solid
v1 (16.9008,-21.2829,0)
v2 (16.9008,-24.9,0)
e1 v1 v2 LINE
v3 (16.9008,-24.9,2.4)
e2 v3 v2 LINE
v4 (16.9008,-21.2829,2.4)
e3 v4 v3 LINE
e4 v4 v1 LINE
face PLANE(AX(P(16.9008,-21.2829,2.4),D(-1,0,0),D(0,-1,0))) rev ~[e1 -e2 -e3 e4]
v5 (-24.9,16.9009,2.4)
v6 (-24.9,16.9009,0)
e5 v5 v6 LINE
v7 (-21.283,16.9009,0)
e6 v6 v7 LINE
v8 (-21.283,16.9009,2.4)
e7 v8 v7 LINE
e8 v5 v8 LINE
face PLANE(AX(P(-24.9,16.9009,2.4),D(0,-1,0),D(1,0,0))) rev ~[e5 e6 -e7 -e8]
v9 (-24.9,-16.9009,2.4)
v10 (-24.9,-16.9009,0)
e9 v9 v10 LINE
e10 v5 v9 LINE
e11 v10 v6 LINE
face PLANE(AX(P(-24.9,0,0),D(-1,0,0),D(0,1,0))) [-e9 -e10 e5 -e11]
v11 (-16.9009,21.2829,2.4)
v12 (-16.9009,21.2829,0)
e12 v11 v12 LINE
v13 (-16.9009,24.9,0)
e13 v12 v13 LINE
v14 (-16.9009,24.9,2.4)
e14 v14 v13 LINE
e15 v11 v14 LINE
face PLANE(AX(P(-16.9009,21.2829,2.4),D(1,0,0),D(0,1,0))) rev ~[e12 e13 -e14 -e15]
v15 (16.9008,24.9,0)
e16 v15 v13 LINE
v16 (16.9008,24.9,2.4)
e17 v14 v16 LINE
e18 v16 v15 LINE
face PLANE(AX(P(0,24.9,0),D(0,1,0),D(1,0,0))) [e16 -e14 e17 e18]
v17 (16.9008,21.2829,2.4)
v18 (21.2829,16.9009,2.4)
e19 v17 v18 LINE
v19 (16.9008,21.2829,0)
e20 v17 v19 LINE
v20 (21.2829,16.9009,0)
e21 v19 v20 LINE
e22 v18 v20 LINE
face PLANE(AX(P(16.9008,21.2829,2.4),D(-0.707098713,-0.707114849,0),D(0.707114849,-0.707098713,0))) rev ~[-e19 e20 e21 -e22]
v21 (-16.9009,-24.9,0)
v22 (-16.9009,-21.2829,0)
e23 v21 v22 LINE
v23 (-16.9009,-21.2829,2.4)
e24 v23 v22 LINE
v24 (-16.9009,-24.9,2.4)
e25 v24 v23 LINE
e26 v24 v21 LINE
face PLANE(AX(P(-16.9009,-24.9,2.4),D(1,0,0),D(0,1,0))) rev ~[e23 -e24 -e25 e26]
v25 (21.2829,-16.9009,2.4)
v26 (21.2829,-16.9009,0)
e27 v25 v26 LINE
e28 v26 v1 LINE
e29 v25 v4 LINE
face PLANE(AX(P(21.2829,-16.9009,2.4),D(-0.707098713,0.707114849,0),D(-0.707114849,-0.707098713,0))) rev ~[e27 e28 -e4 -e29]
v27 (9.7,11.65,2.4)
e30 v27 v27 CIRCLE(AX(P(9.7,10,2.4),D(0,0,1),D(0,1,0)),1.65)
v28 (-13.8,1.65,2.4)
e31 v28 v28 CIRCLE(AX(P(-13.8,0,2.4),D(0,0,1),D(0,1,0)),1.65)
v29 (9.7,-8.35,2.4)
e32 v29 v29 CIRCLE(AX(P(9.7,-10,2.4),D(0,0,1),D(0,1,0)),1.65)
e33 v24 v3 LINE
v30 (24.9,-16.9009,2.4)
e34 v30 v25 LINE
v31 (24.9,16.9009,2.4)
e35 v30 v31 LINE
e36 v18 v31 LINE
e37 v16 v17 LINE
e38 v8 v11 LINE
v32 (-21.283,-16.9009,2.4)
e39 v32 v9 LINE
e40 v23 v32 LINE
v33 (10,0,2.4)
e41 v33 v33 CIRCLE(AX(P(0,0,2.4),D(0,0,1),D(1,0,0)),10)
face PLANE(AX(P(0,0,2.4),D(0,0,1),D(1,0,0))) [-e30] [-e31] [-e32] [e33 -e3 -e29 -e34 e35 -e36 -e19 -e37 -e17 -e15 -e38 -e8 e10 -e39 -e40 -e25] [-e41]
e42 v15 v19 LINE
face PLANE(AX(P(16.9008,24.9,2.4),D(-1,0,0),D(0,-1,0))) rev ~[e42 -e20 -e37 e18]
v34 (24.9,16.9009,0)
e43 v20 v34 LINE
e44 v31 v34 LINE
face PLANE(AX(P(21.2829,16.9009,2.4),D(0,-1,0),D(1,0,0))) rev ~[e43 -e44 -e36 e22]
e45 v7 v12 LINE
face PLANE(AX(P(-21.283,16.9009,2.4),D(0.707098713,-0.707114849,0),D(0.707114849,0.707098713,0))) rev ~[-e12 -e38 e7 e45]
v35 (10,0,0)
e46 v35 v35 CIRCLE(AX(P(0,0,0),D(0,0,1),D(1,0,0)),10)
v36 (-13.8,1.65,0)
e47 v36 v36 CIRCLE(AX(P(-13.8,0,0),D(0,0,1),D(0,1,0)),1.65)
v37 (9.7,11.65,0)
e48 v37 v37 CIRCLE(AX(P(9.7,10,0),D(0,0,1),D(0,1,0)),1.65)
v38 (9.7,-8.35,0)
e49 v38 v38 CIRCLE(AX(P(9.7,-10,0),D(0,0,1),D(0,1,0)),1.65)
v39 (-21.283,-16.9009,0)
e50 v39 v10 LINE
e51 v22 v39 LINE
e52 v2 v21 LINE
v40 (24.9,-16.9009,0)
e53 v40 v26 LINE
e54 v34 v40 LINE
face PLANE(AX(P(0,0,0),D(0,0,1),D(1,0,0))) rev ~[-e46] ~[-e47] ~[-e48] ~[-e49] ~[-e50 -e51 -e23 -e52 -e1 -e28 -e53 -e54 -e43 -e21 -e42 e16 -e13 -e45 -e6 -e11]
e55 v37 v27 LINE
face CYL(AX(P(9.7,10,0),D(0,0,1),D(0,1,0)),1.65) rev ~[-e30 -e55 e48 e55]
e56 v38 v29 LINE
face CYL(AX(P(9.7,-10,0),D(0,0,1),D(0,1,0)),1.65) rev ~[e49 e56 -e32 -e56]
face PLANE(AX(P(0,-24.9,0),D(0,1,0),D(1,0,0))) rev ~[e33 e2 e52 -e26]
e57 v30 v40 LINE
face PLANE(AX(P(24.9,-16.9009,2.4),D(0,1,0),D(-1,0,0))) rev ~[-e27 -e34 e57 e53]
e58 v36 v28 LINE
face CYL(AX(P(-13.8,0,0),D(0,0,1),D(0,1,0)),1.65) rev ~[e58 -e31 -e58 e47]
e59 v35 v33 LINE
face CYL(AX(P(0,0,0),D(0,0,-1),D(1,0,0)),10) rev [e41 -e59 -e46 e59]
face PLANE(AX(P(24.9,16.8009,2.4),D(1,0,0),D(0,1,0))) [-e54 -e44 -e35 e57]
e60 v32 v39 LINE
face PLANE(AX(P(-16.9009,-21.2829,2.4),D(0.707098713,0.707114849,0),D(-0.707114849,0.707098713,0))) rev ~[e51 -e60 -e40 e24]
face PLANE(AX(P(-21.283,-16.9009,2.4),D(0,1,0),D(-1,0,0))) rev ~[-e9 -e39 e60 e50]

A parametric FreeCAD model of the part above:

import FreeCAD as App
import Part
import Sketcher
from FreeCAD import Vector

doc = App.newDocument("Part")
body = doc.addObject("PartDesign::Body", "Body")

# Sketch on XY plane
sketch1 = body.newObject("Sketcher::SketchObject", "Sketch")
sketch1.AttachmentSupport = (doc.getObject("XY_Plane"), [""])
sketch1.MapMode = "FlatFace"
sketch1.addGeometry(Part.LineSegment(Vector(16.8, 24.9, 0), Vector(-16.8, 24.9, 0)), False)
sketch1.addGeometry(Part.LineSegment(Vector(-16.8, 24.9, 0), Vector(-16.8, 21.2, 0)), False)
sketch1.addGeometry(Part.LineSegment(Vector(-16.8, 21.2, 0), Vector(-21.2, 16.8, 0)), False)
sketch1.addGeometry(Part.LineSegment(Vector(-21.2, 16.8, 0), Vector(-24.9, 16.8, 0)), False)
sketch1.addGeometry(Part.LineSegment(Vector(-24.9, 16.8, 0), Vector(-24.9, -16.8, 0)), False)
sketch1.addGeometry(Part.LineSegment(Vector(-24.9, -16.8, 0), Vector(-21.2, -16.8, 0)), False)
sketch1.addGeometry(Part.LineSegment(Vector(-21.2, -16.8, 0), Vector(-16.8, -21.2, 0)), False)
sketch1.addGeometry(Part.LineSegment(Vector(-16.8, -21.2, 0), Vector(-16.8, -24.9, 0)), False)
sketch1.addGeometry(Part.LineSegment(Vector(-16.8, -24.9, 0), Vector(16.8, -24.9, 0)), False)
sketch1.addGeometry(Part.LineSegment(Vector(16.8, -24.9, 0), Vector(16.8, -21.2, 0)), False)
sketch1.addGeometry(Part.LineSegment(Vector(16.8, -21.2, 0), Vector(21.2, -16.8, 0)), False)
sketch1.addGeometry(Part.LineSegment(Vector(21.2, -16.8, 0), Vector(24.9, -16.8, 0)), False)
sketch1.addGeometry(Part.LineSegment(Vector(24.9, -16.8, 0), Vector(24.9, 16.8, 0)), False)
sketch1.addGeometry(Part.LineSegment(Vector(24.9, 16.8, 0), Vector(21.2, 16.8, 0)), False)
sketch1.addGeometry(Part.LineSegment(Vector(21.2, 16.8, 0), Vector(16.8, 21.2, 0)), False)
sketch1.addGeometry(Part.LineSegment(Vector(16.8, 21.2, 0), Vector(16.8, 24.9, 0)), False)
sketch1.addGeometry(Part.Circle(Vector(0, 0, 0), Vector(0, 0, 1), 10), False)
sketch1.addConstraint(Sketcher.Constraint("Coincident", 0, 2, 1, 1))
sketch1.addConstraint(Sketcher.Constraint("Coincident", 1, 2, 2, 1))
sketch1.addConstraint(Sketcher.Constraint("Coincident", 2, 2, 3, 1))
sketch1.addConstraint(Sketcher.Constraint("Coincident", 3, 2, 4, 1))
sketch1.addConstraint(Sketcher.Constraint("Coincident", 4, 2, 5, 1))
sketch1.addConstraint(Sketcher.Constraint("Coincident", 5, 2, 6, 1))
sketch1.addConstraint(Sketcher.Constraint("Coincident", 6, 2, 7, 1))
sketch1.addConstraint(Sketcher.Constraint("Coincident", 7, 2, 8, 1))
sketch1.addConstraint(Sketcher.Constraint("Coincident", 8, 2, 9, 1))
sketch1.addConstraint(Sketcher.Constraint("Coincident", 9, 2, 10, 1))
sketch1.addConstraint(Sketcher.Constraint("Coincident", 10, 2, 11, 1))
sketch1.addConstraint(Sketcher.Constraint("Coincident", 11, 2, 12, 1))
sketch1.addConstraint(Sketcher.Constraint("Coincident", 12, 2, 13, 1))
sketch1.addConstraint(Sketcher.Constraint("Coincident", 13, 2, 14, 1))
sketch1.addConstraint(Sketcher.Constraint("Coincident", 14, 2, 15, 1))
sketch1.addConstraint(Sketcher.Constraint("Coincident", 15, 2, 0, 1))
sketch1.addConstraint(Sketcher.Constraint("Horizontal", 0))
sketch1.addConstraint(Sketcher.Constraint("Vertical", 1))
sketch1.addConstraint(Sketcher.Constraint("Horizontal", 3))
sketch1.addConstraint(Sketcher.Constraint("Vertical", 4))
sketch1.addConstraint(Sketcher.Constraint("Horizontal", 5))
sketch1.addConstraint(Sketcher.Constraint("Vertical", 7))
sketch1.addConstraint(Sketcher.Constraint("Horizontal", 8))
sketch1.addConstraint(Sketcher.Constraint("Vertical", 9))
sketch1.addConstraint(Sketcher.Constraint("Horizontal", 11))
sketch1.addConstraint(Sketcher.Constraint("Vertical", 12))
sketch1.addConstraint(Sketcher.Constraint("Horizontal", 13))
sketch1.addConstraint(Sketcher.Constraint("Vertical", 15))
sketch1.addConstraint(Sketcher.Constraint("Coincident", 16, 3, -1, 1))
sketch1.addConstraint(Sketcher.Constraint("Symmetric", 0, 2, 8, 2, -1, 1))
sketch1.addConstraint(Sketcher.Constraint("Symmetric", 2, 2, 10, 2, -1, 1))
sketch1.addConstraint(Sketcher.Constraint("Symmetric", 4, 2, 12, 2, -1, 1))
sketch1.addConstraint(Sketcher.Constraint("Symmetric", 6, 2, 14, 2, -1, 1))
sketch1.addConstraint(Sketcher.Constraint("Symmetric", 6, 2, 9, 2, -2))
sketch1.addConstraint(Sketcher.Constraint("Symmetric", 5, 2, 10, 2, -2))
sketch1.addConstraint(Sketcher.Constraint("Perpendicular", 2, 6))
sketch1.addConstraint(Sketcher.Constraint("Perpendicular", 6, 10))
sketch1.addConstraint(Sketcher.Constraint("Perpendicular", 10, 14))
sketch1.addConstraint(Sketcher.Constraint("Equal", 13, 1))
sketch1.addConstraint(Sketcher.Constraint("Equal", 8, 4))
sketch1.addConstraint(Sketcher.Constraint("Diameter", 16, 20.0))
sketch1.addConstraint(Sketcher.Constraint("DistanceY", -1, 1, 0, 2, 24.9))
sketch1.addConstraint(Sketcher.Constraint("Distance", 2, 6.28))
sketch1.addConstraint(Sketcher.Constraint("DistanceX", 0, 2, 0, 1, 33.6018))
pad1 = body.newObject("PartDesign::Pad", "Pad")
pad1.Profile = sketch1
pad1.Length = 2.4

# Sketch on XY plane
sketch2 = body.newObject("Sketcher::SketchObject", "Sketch001")
sketch2.AttachmentSupport = (doc.getObject("XY_Plane"), [""])
sketch2.MapMode = "FlatFace"
sketch2.addGeometry(Part.Circle(Vector(9.7, 10, 0), Vector(0, 0, 1), 1.6), False)
sketch2.addGeometry(Part.Circle(Vector(-13.8, 0, 0), Vector(0, 0, 1), 1.6), False)
sketch2.addGeometry(Part.Circle(Vector(9.7, -10, 0), Vector(0, 0, 1), 1.6), False)
sketch2.addConstraint(Sketcher.Constraint("Equal", 0, 1))
sketch2.addConstraint(Sketcher.Constraint("Equal", 1, 2))
sketch2.addConstraint(Sketcher.Constraint("Symmetric", 0, 3, 2, 3, -1))
sketch2.addConstraint(Sketcher.Constraint("PointOnObject", 1, 3, -1))
sketch2.addConstraint(Sketcher.Constraint("Diameter", 0, 3.3))
sketch2.addConstraint(Sketcher.Constraint("DistanceY", -1, 1, 0, 3, 10.0))
sketch2.addConstraint(Sketcher.Constraint("DistanceX", -1, 1, 0, 3, 9.7))
sketch2.addConstraint(Sketcher.Constraint("DistanceX", 1, 3, -1, 1, 13.8))
doc.recompute()
hole = body.newObject("PartDesign::Hole", "Hole")
hole.Profile = sketch2
hole.ThreadType = "None"
hole.Diameter = 3.3
hole.DepthType = "Dimension"
hole.Depth = 12
hole.DrillPoint = "Angled"
hole.DrillPointAngle = 118
hole.Reversed = True

# Sketch on XY plane
sketch3 = body.newObject("Sketcher::SketchObject", "Sketch002")
sketch3.AttachmentSupport = (doc.getObject("XY_Plane"), [""])
sketch3.MapMode = "FlatFace"
sketch3.AttachmentOffset = App.Placement(Vector(0, 0, 2.4), App.Rotation())
sketch3.addGeometry(Part.LineSegment(Vector(-16.9, -24.9, 0), Vector(-16.8, -24.9, 0)), False)
sketch3.addGeometry(Part.LineSegment(Vector(-16.8, -24.9, 0), Vector(-16.8, -21.24, 0)), False)
sketch3.addGeometry(Part.LineSegment(Vector(-16.8, -21.24, 0), Vector(-21.24, -16.8, 0)), False)
sketch3.addGeometry(Part.LineSegment(Vector(-21.24, -16.8, 0), Vector(-24.9, -16.8, 0)), False)
sketch3.addGeometry(Part.LineSegment(Vector(-24.9, -16.8, 0), Vector(-24.9, -16.9, 0)), False)
sketch3.addGeometry(Part.LineSegment(Vector(-24.9, -16.9, 0), Vector(-21.28, -16.9, 0)), False)
sketch3.addGeometry(Part.LineSegment(Vector(-21.28, -16.9, 0), Vector(-16.9, -21.28, 0)), False)
sketch3.addGeometry(Part.LineSegment(Vector(-16.9, -21.28, 0), Vector(-16.9, -24.9, 0)), False)
sketch3.addGeometry(Part.LineSegment(Vector(24.9, -16.9, 0), Vector(24.9, -16.8, 0)), False)
sketch3.addGeometry(Part.LineSegment(Vector(24.9, -16.8, 0), Vector(21.24, -16.8, 0)), False)
sketch3.addGeometry(Part.LineSegment(Vector(21.24, -16.8, 0), Vector(16.8, -21.24, 0)), False)
sketch3.addGeometry(Part.LineSegment(Vector(16.8, -21.24, 0), Vector(16.8, -24.9, 0)), False)
sketch3.addGeometry(Part.LineSegment(Vector(16.8, -24.9, 0), Vector(16.9, -24.9, 0)), False)
sketch3.addGeometry(Part.LineSegment(Vector(16.9, -24.9, 0), Vector(16.9, -21.28, 0)), False)
sketch3.addGeometry(Part.LineSegment(Vector(16.9, -21.28, 0), Vector(21.28, -16.9, 0)), False)
sketch3.addGeometry(Part.LineSegment(Vector(21.28, -16.9, 0), Vector(24.9, -16.9, 0)), False)
sketch3.addGeometry(Part.LineSegment(Vector(16.8, 24.9, 0), Vector(16.8, 21.24, 0)), False)
sketch3.addGeometry(Part.LineSegment(Vector(16.8, 21.24, 0), Vector(21.24, 16.8, 0)), False)
sketch3.addGeometry(Part.LineSegment(Vector(21.24, 16.8, 0), Vector(24.9, 16.8, 0)), False)
sketch3.addGeometry(Part.LineSegment(Vector(24.9, 16.8, 0), Vector(24.9, 16.9, 0)), False)
sketch3.addGeometry(Part.LineSegment(Vector(24.9, 16.9, 0), Vector(21.28, 16.9, 0)), False)
sketch3.addGeometry(Part.LineSegment(Vector(21.28, 16.9, 0), Vector(16.9, 21.28, 0)), False)
sketch3.addGeometry(Part.LineSegment(Vector(16.9, 21.28, 0), Vector(16.9, 24.9, 0)), False)
sketch3.addGeometry(Part.LineSegment(Vector(16.9, 24.9, 0), Vector(16.8, 24.9, 0)), False)
sketch3.addGeometry(Part.LineSegment(Vector(-16.8, 21.24, 0), Vector(-16.8, 24.9, 0)), False)
sketch3.addGeometry(Part.LineSegment(Vector(-16.8, 24.9, 0), Vector(-16.9, 24.9, 0)), False)
sketch3.addGeometry(Part.LineSegment(Vector(-16.9, 24.9, 0), Vector(-16.9, 21.28, 0)), False)
sketch3.addGeometry(Part.LineSegment(Vector(-16.9, 21.28, 0), Vector(-21.28, 16.9, 0)), False)
sketch3.addGeometry(Part.LineSegment(Vector(-21.28, 16.9, 0), Vector(-24.9, 16.9, 0)), False)
sketch3.addGeometry(Part.LineSegment(Vector(-24.9, 16.9, 0), Vector(-24.9, 16.8, 0)), False)
sketch3.addGeometry(Part.LineSegment(Vector(-24.9, 16.8, 0), Vector(-21.24, 16.8, 0)), False)
sketch3.addGeometry(Part.LineSegment(Vector(-21.24, 16.8, 0), Vector(-16.8, 21.24, 0)), False)
sketch3.addConstraint(Sketcher.Constraint("Coincident", 0, 2, 1, 1))
sketch3.addConstraint(Sketcher.Constraint("Coincident", 1, 2, 2, 1))
sketch3.addConstraint(Sketcher.Constraint("Coincident", 2, 2, 3, 1))
sketch3.addConstraint(Sketcher.Constraint("Coincident", 3, 2, 4, 1))
sketch3.addConstraint(Sketcher.Constraint("Coincident", 4, 2, 5, 1))
sketch3.addConstraint(Sketcher.Constraint("Coincident", 5, 2, 6, 1))
sketch3.addConstraint(Sketcher.Constraint("Coincident", 6, 2, 7, 1))
sketch3.addConstraint(Sketcher.Constraint("Coincident", 7, 2, 0, 1))
sketch3.addConstraint(Sketcher.Constraint("Coincident", 8, 2, 9, 1))
sketch3.addConstraint(Sketcher.Constraint("Coincident", 9, 2, 10, 1))
sketch3.addConstraint(Sketcher.Constraint("Coincident", 10, 2, 11, 1))
sketch3.addConstraint(Sketcher.Constraint("Coincident", 11, 2, 12, 1))
sketch3.addConstraint(Sketcher.Constraint("Coincident", 12, 2, 13, 1))
sketch3.addConstraint(Sketcher.Constraint("Coincident", 13, 2, 14, 1))
sketch3.addConstraint(Sketcher.Constraint("Coincident", 14, 2, 15, 1))
sketch3.addConstraint(Sketcher.Constraint("Coincident", 15, 2, 8, 1))
sketch3.addConstraint(Sketcher.Constraint("Coincident", 16, 2, 17, 1))
sketch3.addConstraint(Sketcher.Constraint("Coincident", 17, 2, 18, 1))
sketch3.addConstraint(Sketcher.Constraint("Coincident", 18, 2, 19, 1))
sketch3.addConstraint(Sketcher.Constraint("Coincident", 19, 2, 20, 1))
sketch3.addConstraint(Sketcher.Constraint("Coincident", 20, 2, 21, 1))
sketch3.addConstraint(Sketcher.Constraint("Coincident", 21, 2, 22, 1))
sketch3.addConstraint(Sketcher.Constraint("Coincident", 22, 2, 23, 1))
sketch3.addConstraint(Sketcher.Constraint("Coincident", 23, 2, 16, 1))
sketch3.addConstraint(Sketcher.Constraint("Coincident", 24, 2, 25, 1))
sketch3.addConstraint(Sketcher.Constraint("Coincident", 25, 2, 26, 1))
sketch3.addConstraint(Sketcher.Constraint("Coincident", 26, 2, 27, 1))
sketch3.addConstraint(Sketcher.Constraint("Coincident", 27, 2, 28, 1))
sketch3.addConstraint(Sketcher.Constraint("Coincident", 28, 2, 29, 1))
sketch3.addConstraint(Sketcher.Constraint("Coincident", 29, 2, 30, 1))
sketch3.addConstraint(Sketcher.Constraint("Coincident", 30, 2, 31, 1))
sketch3.addConstraint(Sketcher.Constraint("Coincident", 31, 2, 24, 1))
sketch3.addConstraint(Sketcher.Constraint("Horizontal", 0))
sketch3.addConstraint(Sketcher.Constraint("Vertical", 1))
sketch3.addConstraint(Sketcher.Constraint("Horizontal", 3))
sketch3.addConstraint(Sketcher.Constraint("Vertical", 4))
sketch3.addConstraint(Sketcher.Constraint("Horizontal", 5))
sketch3.addConstraint(Sketcher.Constraint("Vertical", 7))
sketch3.addConstraint(Sketcher.Constraint("Vertical", 8))
sketch3.addConstraint(Sketcher.Constraint("Horizontal", 9))
sketch3.addConstraint(Sketcher.Constraint("Vertical", 11))
sketch3.addConstraint(Sketcher.Constraint("Horizontal", 12))
sketch3.addConstraint(Sketcher.Constraint("Vertical", 13))
sketch3.addConstraint(Sketcher.Constraint("Horizontal", 15))
sketch3.addConstraint(Sketcher.Constraint("Vertical", 16))
sketch3.addConstraint(Sketcher.Constraint("Horizontal", 18))
sketch3.addConstraint(Sketcher.Constraint("Vertical", 19))
sketch3.addConstraint(Sketcher.Constraint("Horizontal", 20))
sketch3.addConstraint(Sketcher.Constraint("Vertical", 22))
sketch3.addConstraint(Sketcher.Constraint("Horizontal", 23))
sketch3.addConstraint(Sketcher.Constraint("Vertical", 24))
sketch3.addConstraint(Sketcher.Constraint("Horizontal", 25))
sketch3.addConstraint(Sketcher.Constraint("Vertical", 26))
sketch3.addConstraint(Sketcher.Constraint("Horizontal", 28))
sketch3.addConstraint(Sketcher.Constraint("Vertical", 29))
sketch3.addConstraint(Sketcher.Constraint("Horizontal", 30))
sketch3.addConstraint(Sketcher.Constraint("Symmetric", 1, 2, 16, 2, -1, 1))
sketch3.addConstraint(Sketcher.Constraint("Symmetric", 2, 2, 17, 2, -1, 1))
sketch3.addConstraint(Sketcher.Constraint("Symmetric", 4, 2, 19, 2, -1, 1))
sketch3.addConstraint(Sketcher.Constraint("Symmetric", 6, 2, 21, 2, -1, 1))
sketch3.addConstraint(Sketcher.Constraint("Symmetric", 11, 2, 24, 2, -1, 1))
sketch3.addConstraint(Sketcher.Constraint("Symmetric", 13, 2, 26, 2, -1, 1))
sketch3.addConstraint(Sketcher.Constraint("Symmetric", 14, 2, 27, 2, -1, 1))
sketch3.addConstraint(Sketcher.Constraint("Symmetric", 8, 2, 29, 2, -1, 1))
sketch3.addConstraint(Sketcher.Constraint("Symmetric", 3, 2, 8, 2, -2))
sketch3.addConstraint(Sketcher.Constraint("Symmetric", 1, 2, 10, 2, -2))
sketch3.addConstraint(Sketcher.Constraint("Symmetric", 7, 2, 12, 2, -2))
sketch3.addConstraint(Sketcher.Constraint("Symmetric", 5, 2, 14, 2, -2))
sketch3.addConstraint(Sketcher.Constraint("Parallel", 2, 6))
sketch3.addConstraint(Sketcher.Constraint("Perpendicular", 6, 10))
sketch3.addConstraint(Sketcher.Constraint("Parallel", 10, 14))
sketch3.addConstraint(Sketcher.Constraint("Parallel", 17, 21))
sketch3.addConstraint(Sketcher.Constraint("Parallel", 27, 31))
sketch3.addConstraint(Sketcher.Constraint("Horizontal", 6, 2, 13, 2))
sketch3.addConstraint(Sketcher.Constraint("Horizontal", 23, 2, 24, 2))
sketch3.addConstraint(Sketcher.Constraint("Horizontal", 16, 2, 31, 2))
sketch3.addConstraint(Sketcher.Constraint("Equal", 30, 1))
sketch3.addConstraint(Sketcher.Constraint("Equal", 25, 4))
sketch3.addConstraint(Sketcher.Constraint("DistanceX", 0, 1, 0, 2, 0.1))
sketch3.addConstraint(Sketcher.Constraint("DistanceY", 0, 2, -1, 1, 24.9))
sketch3.addConstraint(Sketcher.Constraint("DistanceX", 3, 2, -1, 1, 24.9))
sketch3.addConstraint(Sketcher.Constraint("Distance", 2, 6.28))
sketch3.addConstraint(Sketcher.Constraint("DistanceX", 5, 1, 5, 2, 3.617))
sketch3.addConstraint(Sketcher.Constraint("DistanceX", 3, 2, 3, 1, 3.6585))
pad2 = body.newObject("PartDesign::Pad", "Pad001")
pad2.Profile = sketch3
pad2.Length = 2.4
pad2.Reversed = True

doc.recompute()
